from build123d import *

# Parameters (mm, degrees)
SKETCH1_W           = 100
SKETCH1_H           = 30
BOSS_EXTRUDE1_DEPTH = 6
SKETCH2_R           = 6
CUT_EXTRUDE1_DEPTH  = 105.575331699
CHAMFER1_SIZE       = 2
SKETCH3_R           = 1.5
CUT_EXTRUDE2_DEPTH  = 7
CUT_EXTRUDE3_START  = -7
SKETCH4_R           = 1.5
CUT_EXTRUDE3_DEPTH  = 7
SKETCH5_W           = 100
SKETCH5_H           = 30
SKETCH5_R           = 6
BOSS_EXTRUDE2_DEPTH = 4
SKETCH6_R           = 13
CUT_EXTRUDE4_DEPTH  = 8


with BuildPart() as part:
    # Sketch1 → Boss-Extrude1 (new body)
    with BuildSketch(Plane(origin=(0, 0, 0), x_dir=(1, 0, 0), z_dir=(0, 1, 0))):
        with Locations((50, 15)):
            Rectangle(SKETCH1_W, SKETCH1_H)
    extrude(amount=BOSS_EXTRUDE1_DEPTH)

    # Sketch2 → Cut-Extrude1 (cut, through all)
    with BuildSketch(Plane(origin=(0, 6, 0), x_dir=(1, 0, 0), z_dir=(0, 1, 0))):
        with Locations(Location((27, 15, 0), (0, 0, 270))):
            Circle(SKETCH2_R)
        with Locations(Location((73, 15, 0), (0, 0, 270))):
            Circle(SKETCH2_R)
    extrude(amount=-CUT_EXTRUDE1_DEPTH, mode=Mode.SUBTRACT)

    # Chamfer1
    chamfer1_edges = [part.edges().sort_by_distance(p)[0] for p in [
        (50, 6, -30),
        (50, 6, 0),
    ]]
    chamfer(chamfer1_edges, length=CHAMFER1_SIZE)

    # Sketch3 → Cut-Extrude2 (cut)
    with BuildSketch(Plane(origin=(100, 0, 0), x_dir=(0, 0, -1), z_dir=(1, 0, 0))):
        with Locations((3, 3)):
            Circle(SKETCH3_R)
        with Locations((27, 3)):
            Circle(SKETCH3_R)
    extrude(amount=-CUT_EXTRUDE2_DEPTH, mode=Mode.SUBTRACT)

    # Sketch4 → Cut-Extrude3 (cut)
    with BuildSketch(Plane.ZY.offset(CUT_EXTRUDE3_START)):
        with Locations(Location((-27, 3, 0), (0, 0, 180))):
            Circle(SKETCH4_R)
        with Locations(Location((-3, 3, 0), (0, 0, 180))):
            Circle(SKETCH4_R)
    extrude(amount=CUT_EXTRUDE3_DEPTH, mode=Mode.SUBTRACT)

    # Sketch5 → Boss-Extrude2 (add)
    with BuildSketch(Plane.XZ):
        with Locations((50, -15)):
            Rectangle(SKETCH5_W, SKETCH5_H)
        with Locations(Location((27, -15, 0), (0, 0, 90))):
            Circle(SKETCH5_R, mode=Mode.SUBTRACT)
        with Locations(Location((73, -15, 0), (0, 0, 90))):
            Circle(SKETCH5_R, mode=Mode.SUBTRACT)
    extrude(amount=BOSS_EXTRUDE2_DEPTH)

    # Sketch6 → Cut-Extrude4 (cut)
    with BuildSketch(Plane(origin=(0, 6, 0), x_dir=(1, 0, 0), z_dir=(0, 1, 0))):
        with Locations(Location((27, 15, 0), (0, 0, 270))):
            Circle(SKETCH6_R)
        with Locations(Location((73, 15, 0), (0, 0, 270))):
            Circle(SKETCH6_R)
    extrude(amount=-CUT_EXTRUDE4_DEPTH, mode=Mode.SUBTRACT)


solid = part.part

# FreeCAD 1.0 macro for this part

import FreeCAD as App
import Part
import Sketcher

V = App.Vector


def edges_at(feature, points):
    """Names of the edges that pass closest to the given points."""
    edges = feature.Shape.Edges
    near = lambda p: min(range(len(edges)), key=lambda i: edges[i].distToShape(Part.Vertex(*p))[0])
    return sorted({f"Edge{near(p) + 1}" for p in points})


def add_polygon(sketch, points):
    """Adds a closed chain of lines whose ends are joined by coincident constraints."""
    first, n = sketch.GeometryCount, len(points)
    for a, b in zip(points, points[1:] + points[:1]):
        sketch.addGeometry(Part.LineSegment(App.Vector(*a, 0), App.Vector(*b, 0)), False)
    for i in range(n):
        sketch.addConstraint(Sketcher.Constraint("Coincident", first + i, 2, first + (i + 1) % n, 1))

doc = App.newDocument("Part")
params = doc.addObject("Spreadsheet::Sheet", "Params")
for row, (alias, value) in enumerate([
    ("sketch1_width", "100 mm"),
    ("sketch1_height", "30 mm"),
    ("pad1_length", "6 mm"),
    ("sketch2_diameter", "12 mm"),
    ("chamfer_size", "2 mm"),
    ("sketch3_diameter", "3 mm"),
    ("pocket2_length", "7 mm"),
    ("sketch4_diameter", "3 mm"),
    ("pocket3_length", "7 mm"),
    ("sketch5_diameter", "12 mm"),
    ("sketch5_width", "100 mm"),
    ("sketch5_height", "30 mm"),
    ("pad2_length", "4 mm"),
    ("sketch6_diameter", "26 mm"),
    ("pocket4_length", "8 mm"),
], start=1):
    params.set(f"A{row}", alias)
    params.set(f"B{row}", "=" + value)
    params.setAlias(f"B{row}", alias)

body = doc.addObject("PartDesign::Body", "Body")

sketch1 = doc.addObject("Sketcher::SketchObject", "Sketch")
body.addObject(sketch1)
sketch1.AttachmentSupport = (doc.XZ_Plane, [""])
sketch1.MapMode = "FlatFace"
add_polygon(sketch1, [(0, -30), (0, 0), (100, 0), (100, -30)])
sketch1.addConstraint([
    Sketcher.Constraint("Vertical", 0),
    Sketcher.Constraint("Horizontal", 1),
    Sketcher.Constraint("Vertical", 2),
    Sketcher.Constraint("Horizontal", 3),
    Sketcher.Constraint("Coincident", 0, 2, -1, 1),
    Sketcher.Constraint("DistanceX", 1, 1, 1, 2, 100.0),
    Sketcher.Constraint("DistanceY", 0, 1, 0, 2, 30.0),
])
sketch1.setExpression("Constraints[9]", "Params.sketch1_width")
sketch1.setExpression("Constraints[10]", "Params.sketch1_height")
pad1 = doc.addObject("PartDesign::Pad", "Pad")
body.addObject(pad1)
pad1.Profile = sketch1
pad1.setExpression("Length", "Params.pad1_length")
pad1.Reversed = True

sketch2 = doc.addObject("Sketcher::SketchObject", "Sketch001")
body.addObject(sketch2)
sketch2.AttachmentSupport = (doc.XZ_Plane, [""])
sketch2.MapMode = "FlatFace"
sketch2.AttachmentOffset = App.Placement(V(0, 0, -6), App.Rotation())
sketch2.addGeometry([
    Part.Circle(V(27, -15, 0), V(0, 0, 1), 6),
    Part.Circle(V(73, -15, 0), V(0, 0, 1), 6),
], False)
sketch2.addConstraint([
    Sketcher.Constraint("Equal", 0, 1),
    Sketcher.Constraint("Horizontal", 0, 3, 1, 3),
    Sketcher.Constraint("Diameter", 0, 12.0),
    Sketcher.Constraint("DistanceX", -1, 1, 0, 3, 27.0),
    Sketcher.Constraint("DistanceY", 0, 3, -1, 1, 15.0),
    Sketcher.Constraint("DistanceX", -1, 1, 1, 3, 73.0),
])
sketch2.setExpression("Constraints[2]", "Params.sketch2_diameter")
pocket1 = doc.addObject("PartDesign::Pocket", "Pocket")
body.addObject(pocket1)
pocket1.Profile = sketch2
pocket1.Type = "ThroughAll"
pocket1.Reversed = True
doc.recompute()

chamfer = doc.addObject("PartDesign::Chamfer", "Chamfer")
body.addObject(chamfer)
chamfer.Base = (pocket1, edges_at(pocket1, [(50, 6, -30), (50, 6, 0)]))
chamfer.setExpression("Size", "Params.chamfer_size")

sketch3 = doc.addObject("Sketcher::SketchObject", "Sketch002")
body.addObject(sketch3)
sketch3.AttachmentSupport = (doc.YZ_Plane, [""])
sketch3.MapMode = "FlatFace"
sketch3.AttachmentOffset = App.Placement(V(0, 0, 100), App.Rotation())
sketch3.addGeometry([
    Part.Circle(V(3, -3, 0), V(0, 0, 1), 1.5),
    Part.Circle(V(3, -27, 0), V(0, 0, 1), 1.5),
], False)
sketch3.addConstraint([
    Sketcher.Constraint("Equal", 0, 1),
    Sketcher.Constraint("Vertical", 0, 3, 1, 3),
    Sketcher.Constraint("Diameter", 0, 3.0),
    Sketcher.Constraint("DistanceX", -1, 1, 0, 3, 3.0),
    Sketcher.Constraint("DistanceY", 0, 3, -1, 1, 3.0),
    Sketcher.Constraint("DistanceY", 1, 3, -1, 1, 27.0),
])
sketch3.setExpression("Constraints[2]", "Params.sketch3_diameter")
pocket2 = doc.addObject("PartDesign::Pocket", "Pocket001")
body.addObject(pocket2)
pocket2.Profile = sketch3
pocket2.setExpression("Length", "Params.pocket2_length")

sketch4 = doc.addObject("Sketcher::SketchObject", "Sketch003")
body.addObject(sketch4)
sketch4.AttachmentSupport = (doc.YZ_Plane, [""])
sketch4.MapMode = "FlatFace"
sketch4.AttachmentOffset = App.Placement(V(0, 0, 7), App.Rotation())
sketch4.addGeometry([
    Part.Circle(V(3, -27, 0), V(0, 0, 1), 1.5),
    Part.Circle(V(3, -3, 0), V(0, 0, 1), 1.5),
], False)
sketch4.addConstraint([
    Sketcher.Constraint("Equal", 0, 1),
    Sketcher.Constraint("Vertical", 0, 3, 1, 3),
    Sketcher.Constraint("Diameter", 0, 3.0),
    Sketcher.Constraint("DistanceX", -1, 1, 0, 3, 3.0),
    Sketcher.Constraint("DistanceY", 0, 3, -1, 1, 27.0),
    Sketcher.Constraint("DistanceY", 1, 3, -1, 1, 3.0),
])
sketch4.setExpression("Constraints[2]", "Params.sketch4_diameter")
pocket3 = doc.addObject("PartDesign::Pocket", "Pocket002")
body.addObject(pocket3)
pocket3.Profile = sketch4
pocket3.setExpression("Length", "Params.pocket3_length")

sketch5 = doc.addObject("Sketcher::SketchObject", "Sketch004")
body.addObject(sketch5)
sketch5.AttachmentSupport = (doc.XZ_Plane, [""])
sketch5.MapMode = "FlatFace"
add_polygon(sketch5, [(0, 0), (0, -30), (100, -30), (100, 0)])
sketch5.addGeometry(Part.Circle(V(27, -15, 0), V(0, 0, 1), 6), False)
sketch5.addGeometry(Part.Circle(V(73, -15, 0), V(0, 0, 1), 6), False)
sketch5.addConstraint([
    Sketcher.Constraint("Vertical", 0),
    Sketcher.Constraint("Horizontal", 1),
    Sketcher.Constraint("Vertical", 2),
    Sketcher.Constraint("Horizontal", 3),
    Sketcher.Constraint("Coincident", 3, 2, -1, 1),
    Sketcher.Constraint("Equal", 4, 5),
    Sketcher.Constraint("Horizontal", 4, 3, 5, 3),
    Sketcher.Constraint("Diameter", 4, 12.0),
    Sketcher.Constraint("DistanceX", 1, 1, 1, 2, 100.0),
    Sketcher.Constraint("DistanceY", 0, 2, 0, 1, 30.0),
    Sketcher.Constraint("DistanceX", -1, 1, 4, 3, 27.0),
    Sketcher.Constraint("DistanceY", 4, 3, -1, 1, 15.0),
    Sketcher.Constraint("DistanceX", -1, 1, 5, 3, 73.0),
])
sketch5.setExpression("Constraints[11]", "Params.sketch5_diameter")
sketch5.setExpression("Constraints[12]", "Params.sketch5_width")
sketch5.setExpression("Constraints[13]", "Params.sketch5_height")
pad2 = doc.addObject("PartDesign::Pad", "Pad001")
body.addObject(pad2)
pad2.Profile = sketch5
pad2.setExpression("Length", "Params.pad2_length")

sketch6 = doc.addObject("Sketcher::SketchObject", "Sketch005")
body.addObject(sketch6)
sketch6.AttachmentSupport = (doc.XZ_Plane, [""])
sketch6.MapMode = "FlatFace"
sketch6.AttachmentOffset = App.Placement(V(0, 0, -6), App.Rotation())
sketch6.addGeometry([
    Part.Circle(V(27, -15, 0), V(0, 0, 1), 13),
    Part.Circle(V(73, -15, 0), V(0, 0, 1), 13),
], False)
sketch6.addConstraint([
    Sketcher.Constraint("Equal", 0, 1),
    Sketcher.Constraint("Horizontal", 0, 3, 1, 3),
    Sketcher.Constraint("Diameter", 0, 26.0),
    Sketcher.Constraint("DistanceX", -1, 1, 0, 3, 27.0),
    Sketcher.Constraint("DistanceY", 0, 3, -1, 1, 15.0),
    Sketcher.Constraint("DistanceX", -1, 1, 1, 3, 73.0),
])
sketch6.setExpression("Constraints[2]", "Params.sketch6_diameter")
pocket4 = doc.addObject("PartDesign::Pocket", "Pocket003")
body.addObject(pocket4)
pocket4.Profile = sketch6
pocket4.setExpression("Length", "Params.pocket4_length")
pocket4.Reversed = True

doc.recompute()
